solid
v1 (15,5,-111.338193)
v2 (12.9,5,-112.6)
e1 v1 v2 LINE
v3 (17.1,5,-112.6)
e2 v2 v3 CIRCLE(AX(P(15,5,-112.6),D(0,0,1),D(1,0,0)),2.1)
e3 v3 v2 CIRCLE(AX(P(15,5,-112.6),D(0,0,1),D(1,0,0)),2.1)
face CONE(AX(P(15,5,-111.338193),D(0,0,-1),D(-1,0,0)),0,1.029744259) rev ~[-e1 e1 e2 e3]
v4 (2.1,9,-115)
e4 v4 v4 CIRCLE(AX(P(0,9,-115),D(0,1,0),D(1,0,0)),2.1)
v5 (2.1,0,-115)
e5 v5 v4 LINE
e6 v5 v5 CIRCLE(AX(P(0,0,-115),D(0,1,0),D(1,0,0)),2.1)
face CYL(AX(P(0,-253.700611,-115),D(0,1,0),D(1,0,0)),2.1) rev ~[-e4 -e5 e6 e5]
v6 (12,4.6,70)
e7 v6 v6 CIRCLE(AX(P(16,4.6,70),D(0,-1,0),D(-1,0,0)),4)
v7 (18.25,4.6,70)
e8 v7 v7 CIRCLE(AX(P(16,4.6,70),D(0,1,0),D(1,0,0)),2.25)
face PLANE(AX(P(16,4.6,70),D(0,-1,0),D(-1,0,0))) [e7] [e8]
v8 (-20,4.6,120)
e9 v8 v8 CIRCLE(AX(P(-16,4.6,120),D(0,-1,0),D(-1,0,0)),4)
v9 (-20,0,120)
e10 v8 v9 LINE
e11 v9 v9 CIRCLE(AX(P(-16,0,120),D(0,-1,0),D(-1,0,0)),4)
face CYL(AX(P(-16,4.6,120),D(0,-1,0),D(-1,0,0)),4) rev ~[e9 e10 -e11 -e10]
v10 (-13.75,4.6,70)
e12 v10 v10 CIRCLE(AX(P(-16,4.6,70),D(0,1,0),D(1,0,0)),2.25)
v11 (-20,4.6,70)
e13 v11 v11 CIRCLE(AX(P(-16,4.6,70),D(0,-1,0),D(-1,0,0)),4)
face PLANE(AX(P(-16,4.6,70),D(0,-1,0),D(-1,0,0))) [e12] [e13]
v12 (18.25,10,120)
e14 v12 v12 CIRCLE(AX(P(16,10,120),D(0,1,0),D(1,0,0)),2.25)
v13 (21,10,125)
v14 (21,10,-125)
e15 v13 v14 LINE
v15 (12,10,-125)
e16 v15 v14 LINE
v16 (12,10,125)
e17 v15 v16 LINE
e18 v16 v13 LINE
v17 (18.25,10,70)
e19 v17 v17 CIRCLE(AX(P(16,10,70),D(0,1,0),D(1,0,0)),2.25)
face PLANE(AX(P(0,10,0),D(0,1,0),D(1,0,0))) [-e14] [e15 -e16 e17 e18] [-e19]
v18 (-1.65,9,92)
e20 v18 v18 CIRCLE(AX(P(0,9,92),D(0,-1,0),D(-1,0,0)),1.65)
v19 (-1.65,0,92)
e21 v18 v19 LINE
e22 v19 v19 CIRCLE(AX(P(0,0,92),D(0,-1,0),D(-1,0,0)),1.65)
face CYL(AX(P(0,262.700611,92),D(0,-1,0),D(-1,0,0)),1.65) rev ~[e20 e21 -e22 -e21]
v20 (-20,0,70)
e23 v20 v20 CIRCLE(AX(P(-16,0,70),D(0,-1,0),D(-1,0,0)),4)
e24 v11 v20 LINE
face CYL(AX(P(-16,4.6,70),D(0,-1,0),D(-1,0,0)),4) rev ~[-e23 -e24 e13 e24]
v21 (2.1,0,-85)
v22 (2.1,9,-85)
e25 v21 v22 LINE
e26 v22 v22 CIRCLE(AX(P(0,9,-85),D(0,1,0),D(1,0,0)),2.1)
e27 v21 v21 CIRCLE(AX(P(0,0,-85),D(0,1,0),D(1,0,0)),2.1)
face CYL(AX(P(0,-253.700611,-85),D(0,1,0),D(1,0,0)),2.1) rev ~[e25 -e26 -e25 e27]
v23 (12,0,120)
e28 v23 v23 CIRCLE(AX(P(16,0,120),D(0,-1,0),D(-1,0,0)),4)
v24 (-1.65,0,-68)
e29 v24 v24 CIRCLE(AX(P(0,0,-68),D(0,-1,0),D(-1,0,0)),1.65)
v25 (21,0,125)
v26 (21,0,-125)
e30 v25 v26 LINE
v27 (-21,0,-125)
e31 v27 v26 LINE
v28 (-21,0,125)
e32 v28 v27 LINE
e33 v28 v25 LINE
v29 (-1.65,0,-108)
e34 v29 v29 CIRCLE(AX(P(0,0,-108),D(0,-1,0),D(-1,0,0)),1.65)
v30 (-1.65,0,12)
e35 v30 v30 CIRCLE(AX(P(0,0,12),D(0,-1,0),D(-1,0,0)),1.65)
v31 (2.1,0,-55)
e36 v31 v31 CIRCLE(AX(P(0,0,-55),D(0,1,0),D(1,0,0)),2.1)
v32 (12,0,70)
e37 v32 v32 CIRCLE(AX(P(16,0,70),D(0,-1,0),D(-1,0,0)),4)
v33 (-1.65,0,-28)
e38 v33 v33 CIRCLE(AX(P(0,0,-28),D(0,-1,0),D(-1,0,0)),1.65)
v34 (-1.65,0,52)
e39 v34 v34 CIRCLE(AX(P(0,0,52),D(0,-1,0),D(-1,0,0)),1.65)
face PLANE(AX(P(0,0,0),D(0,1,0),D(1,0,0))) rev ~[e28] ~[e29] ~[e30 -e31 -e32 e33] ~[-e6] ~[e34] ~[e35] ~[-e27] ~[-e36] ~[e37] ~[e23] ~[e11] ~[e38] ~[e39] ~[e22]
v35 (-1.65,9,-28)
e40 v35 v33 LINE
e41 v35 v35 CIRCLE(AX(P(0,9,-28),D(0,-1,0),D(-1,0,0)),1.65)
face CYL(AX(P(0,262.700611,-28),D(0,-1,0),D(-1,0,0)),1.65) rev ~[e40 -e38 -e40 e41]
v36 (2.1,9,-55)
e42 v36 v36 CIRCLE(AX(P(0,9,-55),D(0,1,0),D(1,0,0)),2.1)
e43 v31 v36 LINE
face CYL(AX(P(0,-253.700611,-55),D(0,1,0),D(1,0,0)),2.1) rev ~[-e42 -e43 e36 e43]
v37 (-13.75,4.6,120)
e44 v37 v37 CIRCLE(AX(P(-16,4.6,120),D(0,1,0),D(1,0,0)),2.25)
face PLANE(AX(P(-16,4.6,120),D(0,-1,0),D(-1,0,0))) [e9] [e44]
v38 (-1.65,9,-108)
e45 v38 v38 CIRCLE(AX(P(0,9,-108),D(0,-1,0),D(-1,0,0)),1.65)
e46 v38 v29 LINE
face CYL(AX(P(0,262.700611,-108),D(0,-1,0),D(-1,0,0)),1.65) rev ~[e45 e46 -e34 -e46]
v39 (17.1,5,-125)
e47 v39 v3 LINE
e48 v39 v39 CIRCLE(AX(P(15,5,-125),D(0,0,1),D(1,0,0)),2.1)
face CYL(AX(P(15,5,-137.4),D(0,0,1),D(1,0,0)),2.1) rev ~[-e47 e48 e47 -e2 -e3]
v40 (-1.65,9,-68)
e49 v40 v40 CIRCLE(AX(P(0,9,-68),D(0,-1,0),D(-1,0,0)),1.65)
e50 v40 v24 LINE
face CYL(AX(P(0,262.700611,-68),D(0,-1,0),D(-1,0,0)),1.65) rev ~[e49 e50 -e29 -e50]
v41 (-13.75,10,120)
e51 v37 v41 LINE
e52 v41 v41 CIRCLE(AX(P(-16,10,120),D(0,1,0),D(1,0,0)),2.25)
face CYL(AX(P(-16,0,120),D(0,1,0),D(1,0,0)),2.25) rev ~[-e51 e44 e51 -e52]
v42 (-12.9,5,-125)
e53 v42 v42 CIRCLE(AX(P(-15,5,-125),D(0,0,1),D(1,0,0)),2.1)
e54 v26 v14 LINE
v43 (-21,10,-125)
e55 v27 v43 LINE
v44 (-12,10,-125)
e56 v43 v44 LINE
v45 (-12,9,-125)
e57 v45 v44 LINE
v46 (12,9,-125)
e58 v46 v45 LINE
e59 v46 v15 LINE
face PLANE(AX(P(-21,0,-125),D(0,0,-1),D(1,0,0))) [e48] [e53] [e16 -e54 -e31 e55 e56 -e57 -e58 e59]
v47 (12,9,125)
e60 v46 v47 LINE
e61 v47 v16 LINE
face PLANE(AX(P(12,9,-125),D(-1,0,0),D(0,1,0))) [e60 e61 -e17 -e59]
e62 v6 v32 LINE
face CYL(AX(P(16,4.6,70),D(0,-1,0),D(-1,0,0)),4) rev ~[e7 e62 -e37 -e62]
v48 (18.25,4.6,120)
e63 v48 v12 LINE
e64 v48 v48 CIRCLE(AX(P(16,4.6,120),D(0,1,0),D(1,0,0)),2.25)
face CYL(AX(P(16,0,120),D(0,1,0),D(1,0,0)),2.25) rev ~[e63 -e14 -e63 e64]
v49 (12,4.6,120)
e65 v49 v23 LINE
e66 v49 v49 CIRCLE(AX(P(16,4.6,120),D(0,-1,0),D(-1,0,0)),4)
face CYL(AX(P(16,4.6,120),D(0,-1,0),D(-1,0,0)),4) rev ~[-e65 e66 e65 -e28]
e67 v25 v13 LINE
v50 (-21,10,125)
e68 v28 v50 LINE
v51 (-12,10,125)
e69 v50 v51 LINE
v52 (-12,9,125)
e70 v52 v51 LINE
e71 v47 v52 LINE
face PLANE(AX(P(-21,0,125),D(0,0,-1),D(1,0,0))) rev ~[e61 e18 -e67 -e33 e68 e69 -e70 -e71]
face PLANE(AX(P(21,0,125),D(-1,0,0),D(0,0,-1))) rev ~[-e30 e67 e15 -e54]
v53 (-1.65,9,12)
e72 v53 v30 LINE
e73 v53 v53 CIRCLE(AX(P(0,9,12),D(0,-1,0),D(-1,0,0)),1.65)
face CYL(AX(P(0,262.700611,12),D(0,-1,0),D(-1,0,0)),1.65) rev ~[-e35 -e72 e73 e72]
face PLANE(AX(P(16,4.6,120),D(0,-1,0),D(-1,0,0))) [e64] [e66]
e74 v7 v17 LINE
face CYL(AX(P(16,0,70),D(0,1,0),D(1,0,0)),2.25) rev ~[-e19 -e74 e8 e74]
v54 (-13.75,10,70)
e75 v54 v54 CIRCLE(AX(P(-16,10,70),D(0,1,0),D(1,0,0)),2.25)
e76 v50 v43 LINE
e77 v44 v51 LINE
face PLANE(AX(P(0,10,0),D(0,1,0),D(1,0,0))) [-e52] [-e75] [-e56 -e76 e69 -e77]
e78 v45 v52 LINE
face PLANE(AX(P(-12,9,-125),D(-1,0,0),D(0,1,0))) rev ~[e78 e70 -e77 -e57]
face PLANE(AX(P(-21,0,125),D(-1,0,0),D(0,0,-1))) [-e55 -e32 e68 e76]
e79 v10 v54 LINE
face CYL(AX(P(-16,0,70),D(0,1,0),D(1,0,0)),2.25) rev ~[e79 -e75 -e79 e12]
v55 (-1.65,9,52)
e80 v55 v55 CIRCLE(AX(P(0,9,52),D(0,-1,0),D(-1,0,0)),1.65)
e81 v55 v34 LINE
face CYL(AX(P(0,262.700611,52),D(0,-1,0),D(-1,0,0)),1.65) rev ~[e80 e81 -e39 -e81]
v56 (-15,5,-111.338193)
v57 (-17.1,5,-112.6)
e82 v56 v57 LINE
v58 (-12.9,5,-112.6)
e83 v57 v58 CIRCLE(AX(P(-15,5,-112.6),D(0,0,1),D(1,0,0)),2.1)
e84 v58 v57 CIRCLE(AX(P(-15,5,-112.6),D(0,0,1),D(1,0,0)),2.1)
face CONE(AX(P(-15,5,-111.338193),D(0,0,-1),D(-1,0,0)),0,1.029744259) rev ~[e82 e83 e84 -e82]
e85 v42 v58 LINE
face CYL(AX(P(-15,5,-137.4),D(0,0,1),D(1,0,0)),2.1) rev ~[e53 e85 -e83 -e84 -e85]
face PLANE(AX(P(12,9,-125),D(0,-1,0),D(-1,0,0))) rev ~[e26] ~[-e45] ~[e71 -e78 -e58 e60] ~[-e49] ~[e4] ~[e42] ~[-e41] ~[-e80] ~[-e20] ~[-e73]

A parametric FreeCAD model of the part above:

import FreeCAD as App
import Part
import Sketcher
Q = App.Units.Quantity


def add_polygon(sketch, points):
    """Adds a closed chain of lines whose ends are joined by coincident constraints."""
    first, n = sketch.GeometryCount, len(points)
    for a, b in zip(points, points[1:] + points[:1]):
        sketch.addGeometry(Part.LineSegment(App.Vector(*a, 0), App.Vector(*b, 0)), False)
    for i in range(n):
        sketch.addConstraint(Sketcher.Constraint("Coincident", first + i, 2, first + (i + 1) % n, 1))

doc = App.newDocument("Part")
params = doc.addObject("Spreadsheet::Sheet", "Params")
for row, (alias, value) in enumerate([
    ("sketch1_width", "42 mm"),
    ("sketch1_height", "250 mm"),
    ("pad1_length", "10 mm"),
    ("sketch2_width", "24 mm"),
    ("sketch2_height", "1 mm"),
    ("sketch3_diameter", "3.3 mm"),
    ("hole_diameter", "3.3 mm"),
    ("linearpattern_pitch", "40 mm"),
    ("sketch4_diameter", "4.2 mm"),
    ("hole2_diameter", "4.2 mm"),
    ("sketch5_diameter", "4.5 mm"),
    ("hole3_diameter", "4.5 mm"),
    ("hole3_cbore_diameter", "8 mm"),
    ("hole3_cbore_depth", "4.6 mm"),
    ("sketch6_diameter", "4.2 mm"),
    ("hole4_diameter", "4.2 mm"),
    ("hole4_depth", "12.4 mm"),
], start=1):
    params.set(f"A{row}", alias)
    params.set(f"B{row}", "=" + value)
    params.setAlias(f"B{row}", alias)

body = doc.addObject("PartDesign::Body", "Body")

# Sketch on XZ plane
sketch1 = doc.addObject("Sketcher::SketchObject", "Sketch")
body.addObject(sketch1)
sketch1.AttachmentSupport = (doc.XZ_Plane, [""])
sketch1.MapMode = "FlatFace"
add_polygon(sketch1, [(-21, -125), (-21, 125), (21, 125), (21, -125)])  # lines 0-3
sketch1.addConstraint([
    Sketcher.Constraint("Vertical", 0),
    Sketcher.Constraint("Horizontal", 1),
    Sketcher.Constraint("Vertical", 2),
    Sketcher.Constraint("Horizontal", 3),
    Sketcher.Constraint("Symmetric", 0, 2, 2, 2, -1, 1),
    Sketcher.Constraint("DistanceX", 1, 1, 1, 2, Q("42 mm")),
    Sketcher.Constraint("DistanceY", 0, 1, 0, 2, Q("250 mm")),
])
sketch1.setExpression("Constraints[9]", "Params.sketch1_width")
sketch1.setExpression("Constraints[10]", "Params.sketch1_height")
pad1 = doc.addObject("PartDesign::Pad", "Pad")
body.addObject(pad1)
pad1.Profile = sketch1
pad1.setExpression("Length", "Params.pad1_length")
pad1.Reversed = True

# Sketch on XY plane
sketch2 = doc.addObject("Sketcher::SketchObject", "Sketch001")
body.addObject(sketch2)
sketch2.AttachmentSupport = (doc.XY_Plane, [""])
sketch2.MapMode = "FlatFace"
sketch2.AttachmentOffset = App.Placement(App.Vector(0, 0, -125), App.Rotation())
add_polygon(sketch2, [(12, 10), (12, 9), (-12, 9), (-12, 10)])  # lines 0-3
sketch2.addConstraint([
    Sketcher.Constraint("Vertical", 0),
    Sketcher.Constraint("Horizontal", 1),
    Sketcher.Constraint("Vertical", 2),
    Sketcher.Constraint("Horizontal", 3),
    Sketcher.Constraint("DistanceX", 1, 2, 1, 1, Q("24 mm")),
    Sketcher.Constraint("DistanceY", 0, 2, 0, 1, Q("1 mm")),
    Sketcher.Constraint("DistanceX", -1, 1, 0, 2, Q("12 mm")),
    Sketcher.Constraint("DistanceY", -1, 1, 0, 2, Q("9 mm")),
])
sketch2.setExpression("Constraints[8]", "Params.sketch2_width")
sketch2.setExpression("Constraints[9]", "Params.sketch2_height")
pocket1 = doc.addObject("PartDesign::Pocket", "Pocket")
body.addObject(pocket1)
pocket1.Profile = sketch2
pocket1.Type = "ThroughAll"
pocket1.Reversed = True

# Sketch on XZ plane
sketch3 = doc.addObject("Sketcher::SketchObject", "Sketch002")
body.addObject(sketch3)
sketch3.AttachmentSupport = (doc.XZ_Plane, [""])
sketch3.MapMode = "FlatFace"
sketch3.AttachmentOffset = App.Placement(App.Vector(0, 0, -9), App.Rotation())
sketch3.addGeometry(Part.Circle(App.Vector(0, -108, 0), App.Vector(0, 0, 1), 1.6), False)
sketch3.addConstraint([
    Sketcher.Constraint("PointOnObject", 0, 3, -2),
    Sketcher.Constraint("Diameter", 0, Q("3.3 mm")),
    Sketcher.Constraint("DistanceY", 0, 3, -1, 1, Q("108 mm")),
])
sketch3.setExpression("Constraints[1]", "Params.sketch3_diameter")
doc.recompute()
hole = doc.addObject("PartDesign::Hole", "Hole")
body.addObject(hole)
hole.Profile = sketch3
hole.ThreadType = "None"
hole.setExpression("Diameter", "Params.hole_diameter")
hole.DepthType = "ThroughAll"
hole.Reversed = True
doc.recompute()

linearpattern = doc.addObject("PartDesign::LinearPattern", "LinearPattern")
body.addObject(linearpattern)
linearpattern.Originals = [hole]
linearpattern.Direction = (doc.Z_Axis, [""])
linearpattern.Mode = "offset"
linearpattern.setExpression("Offset", "Params.linearpattern_pitch")
linearpattern.Occurrences = 6
body.Tip = linearpattern

# Sketch on XZ plane
sketch4 = doc.addObject("Sketcher::SketchObject", "Sketch003")
body.addObject(sketch4)
sketch4.AttachmentSupport = (doc.XZ_Plane, [""])
sketch4.MapMode = "FlatFace"
sketch4.addGeometry([
    Part.Circle(App.Vector(0, -55, 0), App.Vector(0, 0, 1), 2.1),
    Part.Circle(App.Vector(0, -115, 0), App.Vector(0, 0, 1), 2.1),
    Part.Circle(App.Vector(0, -85, 0), App.Vector(0, 0, 1), 2.1),
], False)
sketch4.addConstraint([
    Sketcher.Constraint("Equal", 0, 1),
    Sketcher.Constraint("Equal", 1, 2),
    Sketcher.Constraint("PointOnObject", 0, 3, -2),
    Sketcher.Constraint("PointOnObject", 1, 3, -2),
    Sketcher.Constraint("PointOnObject", 2, 3, -2),
    Sketcher.Constraint("Diameter", 0, Q("4.2 mm")),
    Sketcher.Constraint("DistanceY", 0, 3, -1, 1, Q("55 mm")),
    Sketcher.Constraint("DistanceY", 1, 3, -1, 1, Q("115 mm")),
    Sketcher.Constraint("DistanceY", 2, 3, -1, 1, Q("85 mm")),
])
sketch4.setExpression("Constraints[5]", "Params.sketch4_diameter")
doc.recompute()
hole2 = doc.addObject("PartDesign::Hole", "Hole001")
body.addObject(hole2)
hole2.Profile = sketch4
hole2.ThreadType = "None"
hole2.setExpression("Diameter", "Params.hole2_diameter")
hole2.DepthType = "ThroughAll"

# Sketch on XZ plane
sketch5 = doc.addObject("Sketcher::SketchObject", "Sketch004")
body.addObject(sketch5)
sketch5.AttachmentSupport = (doc.XZ_Plane, [""])
sketch5.MapMode = "FlatFace"
sketch5.addGeometry([
    Part.Circle(App.Vector(-16, 120, 0), App.Vector(0, 0, 1), 2.2),
    Part.Circle(App.Vector(-16, 70, 0), App.Vector(0, 0, 1), 2.2),
    Part.Circle(App.Vector(16, 70, 0), App.Vector(0, 0, 1), 2.2),
    Part.Circle(App.Vector(16, 120, 0), App.Vector(0, 0, 1), 2.2),
], False)
sketch5.addConstraint([
    Sketcher.Constraint("Equal", 0, 1),
    Sketcher.Constraint("Equal", 1, 2),
    Sketcher.Constraint("Equal", 2, 3),
    Sketcher.Constraint("Symmetric", 1, 3, 2, 3, -2),
    Sketcher.Constraint("Symmetric", 0, 3, 3, 3, -2),
    Sketcher.Constraint("Vertical", 0, 3, 1, 3),
    Sketcher.Constraint("Diameter", 0, Q("4.5 mm")),
    Sketcher.Constraint("DistanceX", 0, 3, -1, 1, Q("16 mm")),
    Sketcher.Constraint("DistanceY", -1, 1, 0, 3, Q("120 mm")),
    Sketcher.Constraint("DistanceY", -1, 1, 1, 3, Q("70 mm")),
])
sketch5.setExpression("Constraints[6]", "Params.sketch5_diameter")
doc.recompute()
hole3 = doc.addObject("PartDesign::Hole", "Hole002")
body.addObject(hole3)
hole3.Profile = sketch5
hole3.ThreadType = "None"
hole3.setExpression("Diameter", "Params.hole3_diameter")
hole3.DepthType = "ThroughAll"
hole3.HoleCutType = "Counterbore"
hole3.setExpression("HoleCutDiameter", "Params.hole3_cbore_diameter")
hole3.setExpression("HoleCutDepth", "Params.hole3_cbore_depth")

# Sketch on XY plane
sketch6 = doc.addObject("Sketcher::SketchObject", "Sketch005")
body.addObject(sketch6)
sketch6.AttachmentSupport = (doc.XY_Plane, [""])
sketch6.MapMode = "FlatFace"
sketch6.AttachmentOffset = App.Placement(App.Vector(0, 0, -125), App.Rotation())
sketch6.addGeometry([
    Part.Circle(App.Vector(15, 5, 0), App.Vector(0, 0, 1), 2.1),
    Part.Circle(App.Vector(-15, 5, 0), App.Vector(0, 0, 1), 2.1),
], False)
sketch6.addConstraint([
    Sketcher.Constraint("Equal", 0, 1),
    Sketcher.Constraint("Symmetric", 0, 3, 1, 3, -2),
    Sketcher.Constraint("Diameter", 0, Q("4.2 mm")),
    Sketcher.Constraint("DistanceX", -1, 1, 0, 3, Q("15 mm")),
    Sketcher.Constraint("DistanceY", -1, 1, 0, 3, Q("5 mm")),
])
sketch6.setExpression("Constraints[2]", "Params.sketch6_diameter")
doc.recompute()
hole4 = doc.addObject("PartDesign::Hole", "Hole003")
body.addObject(hole4)
hole4.Profile = sketch6
hole4.ThreadType = "None"
hole4.setExpression("Diameter", "Params.hole4_diameter")
hole4.DepthType = "Dimension"
hole4.setExpression("Depth", "Params.hole4_depth")
hole4.DrillPoint = "Angled"
hole4.DrillPointAngle = 118
hole4.Reversed = True

doc.recompute()
